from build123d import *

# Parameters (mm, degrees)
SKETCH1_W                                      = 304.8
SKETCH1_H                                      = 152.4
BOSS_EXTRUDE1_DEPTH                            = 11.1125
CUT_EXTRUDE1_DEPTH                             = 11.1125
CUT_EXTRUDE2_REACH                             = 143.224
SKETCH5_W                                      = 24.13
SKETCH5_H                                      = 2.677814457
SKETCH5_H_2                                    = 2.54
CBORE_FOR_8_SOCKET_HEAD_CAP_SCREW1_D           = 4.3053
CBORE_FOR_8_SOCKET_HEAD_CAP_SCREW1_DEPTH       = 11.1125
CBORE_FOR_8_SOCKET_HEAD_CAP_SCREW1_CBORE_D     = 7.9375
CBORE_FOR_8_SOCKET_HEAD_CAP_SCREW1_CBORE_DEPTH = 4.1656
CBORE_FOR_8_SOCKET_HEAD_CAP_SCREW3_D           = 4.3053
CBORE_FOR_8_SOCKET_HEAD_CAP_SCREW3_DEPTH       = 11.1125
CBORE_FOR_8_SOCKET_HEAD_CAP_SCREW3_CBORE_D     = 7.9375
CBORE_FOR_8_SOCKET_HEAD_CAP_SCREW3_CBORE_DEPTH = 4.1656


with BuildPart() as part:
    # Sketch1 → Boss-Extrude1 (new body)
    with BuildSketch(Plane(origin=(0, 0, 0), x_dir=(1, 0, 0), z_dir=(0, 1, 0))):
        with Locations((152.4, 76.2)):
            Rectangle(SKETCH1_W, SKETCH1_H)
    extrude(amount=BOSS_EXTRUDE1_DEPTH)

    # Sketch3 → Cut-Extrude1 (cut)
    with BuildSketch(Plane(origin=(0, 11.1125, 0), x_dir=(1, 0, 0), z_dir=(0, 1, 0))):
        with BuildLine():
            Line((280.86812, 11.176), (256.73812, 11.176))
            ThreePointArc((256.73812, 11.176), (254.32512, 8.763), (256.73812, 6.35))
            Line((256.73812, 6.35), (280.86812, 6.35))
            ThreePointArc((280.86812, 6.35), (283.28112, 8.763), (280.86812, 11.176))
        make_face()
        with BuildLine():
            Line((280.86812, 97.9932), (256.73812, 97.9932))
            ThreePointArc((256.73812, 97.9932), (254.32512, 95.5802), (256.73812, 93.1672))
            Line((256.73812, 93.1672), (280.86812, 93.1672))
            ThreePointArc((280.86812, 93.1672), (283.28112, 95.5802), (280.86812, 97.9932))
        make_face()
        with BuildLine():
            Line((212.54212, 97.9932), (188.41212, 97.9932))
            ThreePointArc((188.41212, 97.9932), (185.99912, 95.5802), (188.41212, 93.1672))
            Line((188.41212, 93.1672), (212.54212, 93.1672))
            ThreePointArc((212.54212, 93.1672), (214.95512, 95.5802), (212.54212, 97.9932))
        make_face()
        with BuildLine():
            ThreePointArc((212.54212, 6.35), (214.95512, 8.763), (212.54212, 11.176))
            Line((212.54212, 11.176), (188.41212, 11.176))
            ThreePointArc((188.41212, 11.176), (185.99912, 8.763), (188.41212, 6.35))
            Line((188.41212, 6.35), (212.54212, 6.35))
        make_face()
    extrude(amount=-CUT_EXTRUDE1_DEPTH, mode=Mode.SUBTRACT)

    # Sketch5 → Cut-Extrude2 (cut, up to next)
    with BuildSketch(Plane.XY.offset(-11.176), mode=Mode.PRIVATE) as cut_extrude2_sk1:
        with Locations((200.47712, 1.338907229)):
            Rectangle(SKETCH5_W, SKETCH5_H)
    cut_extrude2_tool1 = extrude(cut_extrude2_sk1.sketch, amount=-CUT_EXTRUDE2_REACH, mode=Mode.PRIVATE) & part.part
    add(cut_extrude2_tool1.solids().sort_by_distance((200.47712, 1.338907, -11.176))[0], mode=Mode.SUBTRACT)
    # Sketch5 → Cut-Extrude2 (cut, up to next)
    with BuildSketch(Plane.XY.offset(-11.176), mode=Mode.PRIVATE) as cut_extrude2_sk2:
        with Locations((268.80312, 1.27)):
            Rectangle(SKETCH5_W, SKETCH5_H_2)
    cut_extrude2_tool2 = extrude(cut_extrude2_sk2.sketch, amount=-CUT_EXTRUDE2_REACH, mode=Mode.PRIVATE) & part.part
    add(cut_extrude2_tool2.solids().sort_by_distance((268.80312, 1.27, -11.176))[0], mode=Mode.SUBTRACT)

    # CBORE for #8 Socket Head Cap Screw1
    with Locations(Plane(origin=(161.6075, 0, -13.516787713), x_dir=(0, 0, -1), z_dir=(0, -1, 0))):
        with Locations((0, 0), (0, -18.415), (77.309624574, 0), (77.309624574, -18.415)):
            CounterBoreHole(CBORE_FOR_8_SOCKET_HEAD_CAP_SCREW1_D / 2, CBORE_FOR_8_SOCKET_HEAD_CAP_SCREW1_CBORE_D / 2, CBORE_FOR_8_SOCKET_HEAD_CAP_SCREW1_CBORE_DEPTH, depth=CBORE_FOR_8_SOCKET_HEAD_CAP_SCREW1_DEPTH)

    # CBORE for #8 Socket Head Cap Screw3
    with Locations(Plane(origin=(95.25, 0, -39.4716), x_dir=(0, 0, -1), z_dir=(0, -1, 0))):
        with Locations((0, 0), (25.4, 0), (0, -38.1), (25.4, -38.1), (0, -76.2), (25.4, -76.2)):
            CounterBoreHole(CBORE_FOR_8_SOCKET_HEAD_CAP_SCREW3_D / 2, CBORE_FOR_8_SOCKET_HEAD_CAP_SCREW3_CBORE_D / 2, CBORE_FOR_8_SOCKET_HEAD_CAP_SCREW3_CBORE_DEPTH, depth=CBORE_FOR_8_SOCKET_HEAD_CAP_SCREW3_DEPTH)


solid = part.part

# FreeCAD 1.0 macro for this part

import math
import FreeCAD as App
import Part
import Sketcher

V = App.Vector
Q = App.Units.Quantity

doc = App.newDocument("Part")
body = doc.addObject("PartDesign::Body", "Body")

# Sketch on XZ plane
sketch1 = body.newObject("Sketcher::SketchObject", "Sketch")
sketch1.AttachmentSupport = (doc.getObject("XZ_Plane"), [""])
sketch1.MapMode = "FlatFace"
sketch1.addGeometry([
    Part.LineSegment(V(0, -152, 0), V(0, 0, 0)),
    Part.LineSegment(V(0, 0, 0), V(305, 0, 0)),
    Part.LineSegment(V(305, 0, 0), V(305, -152, 0)),
    Part.LineSegment(V(305, -152, 0), V(0, -152, 0)),
], False)
sketch1.addConstraint([
    Sketcher.Constraint("Coincident", 0, 2, 1, 1),
    Sketcher.Constraint("Coincident", 1, 2, 2, 1),
    Sketcher.Constraint("Coincident", 2, 2, 3, 1),
    Sketcher.Constraint("Coincident", 3, 2, 0, 1),
    Sketcher.Constraint("Vertical", 0),
    Sketcher.Constraint("Horizontal", 1),
    Sketcher.Constraint("Vertical", 2),
    Sketcher.Constraint("Horizontal", 3),
    Sketcher.Constraint("Coincident", 0, 2, -1, 1),
    Sketcher.Constraint("DistanceX", 1, 1, 1, 2, Q("12 in")),
    Sketcher.Constraint("DistanceY", 0, 1, 0, 2, Q("6 in")),
])
pad1 = body.newObject("PartDesign::Pad", "Pad")
pad1.Profile = sketch1
pad1.Length = Q("0.4375 in")
pad1.Reversed = True

# Sketch on XZ plane
sketch2 = body.newObject("Sketcher::SketchObject", "Sketch001")
sketch2.AttachmentSupport = (doc.getObject("XZ_Plane"), [""])
sketch2.MapMode = "FlatFace"
sketch2.AttachmentOffset = App.Placement(V(0, 0, -0.4375 * 25.4), App.Rotation())
sketch2.addGeometry([
    Part.LineSegment(V(280.9, -11.2, 0), V(256.7, -11.2, 0)),  # 0
    Part.ArcOfCircle(Part.Circle(V(256.7, -8.8, 0), V(0, 0, 1), 2.4), math.radians(90), math.radians(270)),  # 1
    Part.LineSegment(V(256.7, -6.3, 0), V(280.9, -6.3, 0)),  # 2
    Part.ArcOfCircle(Part.Circle(V(280.9, -8.8, 0), V(0, 0, 1), 2.4), math.radians(-90), math.radians(90)),  # 3
    Part.LineSegment(V(280.9, -98, 0), V(256.7, -98, 0)),  # 4
    Part.ArcOfCircle(Part.Circle(V(256.7, -95.6, 0), V(0, 0, 1), 2.4), math.radians(90), math.radians(270)),  # 5
    Part.LineSegment(V(256.7, -93.2, 0), V(280.9, -93.2, 0)),  # 6
    Part.ArcOfCircle(Part.Circle(V(280.9, -95.6, 0), V(0, 0, 1), 2.4), math.radians(-90), math.radians(90)),  # 7
    Part.LineSegment(V(212.5, -98, 0), V(188.4, -98, 0)),  # 8
    Part.ArcOfCircle(Part.Circle(V(188.4, -95.6, 0), V(0, 0, 1), 2.4), math.radians(90), math.radians(270)),  # 9
    Part.LineSegment(V(188.4, -93.2, 0), V(212.5, -93.2, 0)),  # 10
    Part.ArcOfCircle(Part.Circle(V(212.5, -95.6, 0), V(0, 0, 1), 2.4), math.radians(-90), math.radians(90)),  # 11
    Part.ArcOfCircle(Part.Circle(V(212.5, -8.8, 0), V(0, 0, 1), 2.4), math.radians(-90), math.radians(90)),  # 12
    Part.LineSegment(V(212.5, -11.2, 0), V(188.4, -11.2, 0)),  # 13
    Part.ArcOfCircle(Part.Circle(V(188.4, -8.8, 0), V(0, 0, 1), 2.4), math.radians(90), math.radians(270)),  # 14
    Part.LineSegment(V(188.4, -6.3, 0), V(212.5, -6.3, 0)),  # 15
], False)
sketch2.addConstraint([
    Sketcher.Constraint("Tangent", 0, 2, 1, 2),
    Sketcher.Constraint("Tangent", 1, 1, 2, 1),
    Sketcher.Constraint("Tangent", 2, 2, 3, 2),
    Sketcher.Constraint("Tangent", 3, 1, 0, 1),
    Sketcher.Constraint("Tangent", 4, 2, 5, 2),
    Sketcher.Constraint("Tangent", 5, 1, 6, 1),
    Sketcher.Constraint("Tangent", 6, 2, 7, 2),
    Sketcher.Constraint("Tangent", 7, 1, 4, 1),
    Sketcher.Constraint("Tangent", 8, 2, 9, 2),
    Sketcher.Constraint("Tangent", 9, 1, 10, 1),
    Sketcher.Constraint("Tangent", 10, 2, 11, 2),
    Sketcher.Constraint("Tangent", 11, 1, 8, 1),
    Sketcher.Constraint("Tangent", 12, 1, 13, 1),
    Sketcher.Constraint("Tangent", 13, 2, 14, 2),
    Sketcher.Constraint("Tangent", 14, 1, 15, 1),
    Sketcher.Constraint("Tangent", 15, 2, 12, 2),
    Sketcher.Constraint("Horizontal", 0),
    Sketcher.Constraint("Horizontal", 2),
    Sketcher.Constraint("Horizontal", 4),
    Sketcher.Constraint("Horizontal", 6),
    Sketcher.Constraint("Horizontal", 8),
    Sketcher.Constraint("Horizontal", 10),
    Sketcher.Constraint("Horizontal", 13),
    Sketcher.Constraint("Horizontal", 15),
    Sketcher.Constraint("Equal", 3, 5),
    Sketcher.Constraint("Equal", 7, 9),
    Sketcher.Constraint("Equal", 11, 12),
    Sketcher.Constraint("Horizontal", 7, 3, 9, 3),
    Sketcher.Constraint("Horizontal", 3, 3, 12, 3),
    Sketcher.Constraint("Vertical", 1, 3, 5, 3),
    Sketcher.Constraint("Vertical", 3, 3, 7, 3),
    Sketcher.Constraint("Vertical", 11, 3, 12, 3),
    Sketcher.Constraint("Vertical", 9, 3, 14, 3),
    Sketcher.Constraint("Equal", 6, 8),
    Sketcher.Constraint("Radius", 1, Q("0.095 in")),
    Sketcher.Constraint("DistanceX", 0, 2, 0, 1, Q("0.95 in")),
    Sketcher.Constraint("DistanceY", 0, 2, -1, 1, Q("0.44 in")),
    Sketcher.Constraint("DistanceX", 9, 3, 5, 3, Q("2.69 in")),
    Sketcher.Constraint("DistanceY", 5, 3, -1, 1, Q("3.763 in")),
    Sketcher.Constraint("DistanceX", -1, 1, 1, 3, Q("10.1078 in")),
])
pocket1 = body.newObject("PartDesign::Pocket", "Pocket")
pocket1.Profile = sketch2
pocket1.Length = Q("0.4375 in")
pocket1.Reversed = True

# Sketch on XY plane
sketch3 = body.newObject("Sketcher::SketchObject", "Sketch002")
sketch3.AttachmentSupport = (doc.getObject("XY_Plane"), [""])
sketch3.MapMode = "FlatFace"
sketch3.AttachmentOffset = App.Placement(V(0, 0, -0.44 * 25.4), App.Rotation())
sketch3.addGeometry([
    Part.LineSegment(V(188.4, 2.7, 0), V(188.4, 0, 0)),
    Part.LineSegment(V(188.4, 0, 0), V(212.5, 0, 0)),
    Part.LineSegment(V(212.5, 0, 0), V(212.5, 2.7, 0)),
    Part.LineSegment(V(212.5, 2.7, 0), V(188.4, 2.7, 0)),
], False)
sketch3.addConstraint([
    Sketcher.Constraint("Coincident", 0, 2, 1, 1),
    Sketcher.Constraint("Coincident", 1, 2, 2, 1),
    Sketcher.Constraint("Coincident", 2, 2, 3, 1),
    Sketcher.Constraint("Coincident", 3, 2, 0, 1),
    Sketcher.Constraint("Vertical", 0),
    Sketcher.Constraint("Horizontal", 1),
    Sketcher.Constraint("Vertical", 2),
    Sketcher.Constraint("Horizontal", 3),
    Sketcher.Constraint("PointOnObject", 0, 2, -1),
    Sketcher.Constraint("DistanceX", 1, 1, 1, 2, Q("0.95 in")),
    Sketcher.Constraint("DistanceX", -1, 1, 0, 2, Q("7.4178 in")),
    Sketcher.Constraint("DistanceY", 0, 2, 0, 1, Q("2.677814 mm")),
])
pocket2 = body.newObject("PartDesign::Pocket", "Pocket001")
pocket2.Profile = sketch3
pocket2.Type = "UpToFirst"

# Sketch on XY plane
sketch4 = body.newObject("Sketcher::SketchObject", "Sketch003")
sketch4.AttachmentSupport = (doc.getObject("XY_Plane"), [""])
sketch4.MapMode = "FlatFace"
sketch4.AttachmentOffset = App.Placement(V(0, 0, -0.44 * 25.4), App.Rotation())
sketch4.addGeometry([
    Part.LineSegment(V(256.7, 2.5, 0), V(256.7, 0, 0)),
    Part.LineSegment(V(256.7, 0, 0), V(280.9, 0, 0)),
    Part.LineSegment(V(280.9, 0, 0), V(280.9, 2.5, 0)),
    Part.LineSegment(V(280.9, 2.5, 0), V(256.7, 2.5, 0)),
], False)
sketch4.addConstraint([
    Sketcher.Constraint("Coincident", 0, 2, 1, 1),
    Sketcher.Constraint("Coincident", 1, 2, 2, 1),
    Sketcher.Constraint("Coincident", 2, 2, 3, 1),
    Sketcher.Constraint("Coincident", 3, 2, 0, 1),
    Sketcher.Constraint("Vertical", 0),
    Sketcher.Constraint("Horizontal", 1),
    Sketcher.Constraint("Vertical", 2),
    Sketcher.Constraint("Horizontal", 3),
    Sketcher.Constraint("PointOnObject", 0, 2, -1),
    Sketcher.Constraint("DistanceY", 0, 2, 0, 1, Q("0.1 in")),
    Sketcher.Constraint("DistanceX", 1, 1, 1, 2, Q("0.95 in")),
    Sketcher.Constraint("DistanceX", -1, 1, 0, 2, Q("10.1078 in")),
])
pocket3 = body.newObject("PartDesign::Pocket", "Pocket002")
pocket3.Profile = sketch4
pocket3.Type = "UpToFirst"

# Sketch on XZ plane
sketch5 = body.newObject("Sketcher::SketchObject", "Sketch004")
sketch5.AttachmentSupport = (doc.getObject("XZ_Plane"), [""])
sketch5.MapMode = "FlatFace"
sketch5.addGeometry([
    Part.Circle(V(161.6, -13.5, 0), V(0, 0, 1), 2.2),
    Part.Circle(V(143.2, -13.5, 0), V(0, 0, 1), 2.2),
    Part.Circle(V(161.6, -90.8, 0), V(0, 0, 1), 2.2),
    Part.Circle(V(143.2, -90.8, 0), V(0, 0, 1), 2.2),
], False)
sketch5.addConstraint([
    Sketcher.Constraint("Equal", 0, 1),
    Sketcher.Constraint("Equal", 1, 2),
    Sketcher.Constraint("Equal", 2, 3),
    Sketcher.Constraint("Horizontal", 0, 3, 1, 3),
    Sketcher.Constraint("Horizontal", 2, 3, 3, 3),
    Sketcher.Constraint("Vertical", 0, 3, 2, 3),
    Sketcher.Constraint("Vertical", 1, 3, 3, 3),
    Sketcher.Constraint("Diameter", 0, Q("0.1695 in")),
    Sketcher.Constraint("DistanceX", 1, 3, 0, 3, Q("0.725 in")),
    Sketcher.Constraint("DistanceX", -1, 1, 0, 3, Q("6.3625 in")),
    Sketcher.Constraint("DistanceY", 0, 3, -1, 1, Q("13.516788 mm")),
    Sketcher.Constraint("DistanceY", 2, 3, -1, 1, Q("90.826412 mm")),
])
doc.recompute()
hole = body.newObject("PartDesign::Hole", "Hole")
hole.Profile = sketch5
hole.ThreadType = "None"
hole.Diameter = Q("0.1695 in")
hole.DepthType = "Dimension"
hole.Depth = Q("0.4375 in")
hole.DrillPoint = "Flat"
hole.HoleCutType = "Counterbore"
hole.HoleCutDiameter = Q("0.3125 in")
hole.HoleCutDepth = Q("0.164 in")

# Sketch on XZ plane
sketch6 = body.newObject("Sketcher::SketchObject", "Sketch005")
sketch6.AttachmentSupport = (doc.getObject("XZ_Plane"), [""])
sketch6.MapMode = "FlatFace"
sketch6.addGeometry([
    Part.Circle(V(95.2, -39.5, 0), V(0, 0, 1), 2.2),  # 0
    Part.Circle(V(95.2, -64.9, 0), V(0, 0, 1), 2.2),  # 1
    Part.Circle(V(57.1, -39.5, 0), V(0, 0, 1), 2.2),  # 2
    Part.Circle(V(57.1, -64.9, 0), V(0, 0, 1), 2.2),  # 3
    Part.Circle(V(19.1, -39.5, 0), V(0, 0, 1), 2.2),  # 4
    Part.Circle(V(19.1, -64.9, 0), V(0, 0, 1), 2.2),  # 5
], False)
sketch6.addConstraint([
    Sketcher.Constraint("Equal", 0, 1),
    Sketcher.Constraint("Equal", 1, 2),
    Sketcher.Constraint("Equal", 2, 3),
    Sketcher.Constraint("Equal", 3, 4),
    Sketcher.Constraint("Equal", 4, 5),
    Sketcher.Constraint("Horizontal", 0, 3, 2, 3),
    Sketcher.Constraint("Horizontal", 1, 3, 3, 3),
    Sketcher.Constraint("Horizontal", 2, 3, 4, 3),
    Sketcher.Constraint("Horizontal", 3, 3, 5, 3),
    Sketcher.Constraint("Vertical", 0, 3, 1, 3),
    Sketcher.Constraint("Vertical", 2, 3, 3, 3),
    Sketcher.Constraint("Vertical", 4, 3, 5, 3),
    Sketcher.Constraint("DistanceY", 1, 3, 0, 3, Q("1 in")),
    Sketcher.Constraint("DistanceX", 4, 3, 0, 3, Q("3 in")),
    Sketcher.Constraint("Diameter", 0, Q("0.1695 in")),
    Sketcher.Constraint("DistanceX", 2, 3, 0, 3, Q("1.5 in")),
    Sketcher.Constraint("DistanceX", -1, 1, 0, 3, Q("3.75 in")),
    Sketcher.Constraint("DistanceY", 0, 3, -1, 1, Q("1.554 in")),
])
doc.recompute()
hole2 = body.newObject("PartDesign::Hole", "Hole001")
hole2.Profile = sketch6
hole2.ThreadType = "None"
hole2.Diameter = Q("0.1695 in")
hole2.DepthType = "Dimension"
hole2.Depth = Q("0.4375 in")
hole2.DrillPoint = "Flat"
hole2.HoleCutType = "Counterbore"
hole2.HoleCutDiameter = Q("0.3125 in")
hole2.HoleCutDepth = Q("0.164 in")

doc.recompute()
